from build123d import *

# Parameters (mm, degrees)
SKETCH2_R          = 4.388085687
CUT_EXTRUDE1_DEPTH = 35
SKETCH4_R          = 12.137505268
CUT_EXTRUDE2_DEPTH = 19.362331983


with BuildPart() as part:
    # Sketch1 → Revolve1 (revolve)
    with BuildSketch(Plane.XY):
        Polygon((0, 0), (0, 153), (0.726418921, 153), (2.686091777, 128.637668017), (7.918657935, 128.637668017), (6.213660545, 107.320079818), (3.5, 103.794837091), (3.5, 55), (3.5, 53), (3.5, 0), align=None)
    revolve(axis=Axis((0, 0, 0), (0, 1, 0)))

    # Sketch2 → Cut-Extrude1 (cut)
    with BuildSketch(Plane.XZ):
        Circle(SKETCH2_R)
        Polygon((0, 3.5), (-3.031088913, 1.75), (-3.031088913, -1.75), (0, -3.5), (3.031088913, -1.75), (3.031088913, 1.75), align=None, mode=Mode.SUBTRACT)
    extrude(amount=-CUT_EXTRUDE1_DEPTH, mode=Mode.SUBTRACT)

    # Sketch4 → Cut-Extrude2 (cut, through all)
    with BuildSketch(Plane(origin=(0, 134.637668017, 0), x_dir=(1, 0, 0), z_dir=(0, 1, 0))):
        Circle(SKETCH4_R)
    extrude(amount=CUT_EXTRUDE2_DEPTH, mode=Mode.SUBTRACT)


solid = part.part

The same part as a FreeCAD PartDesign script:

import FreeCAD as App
import Part
import Sketcher
from FreeCAD import Vector
Q = App.Units.Quantity

doc = App.newDocument("Part")
body = doc.addObject("PartDesign::Body", "Body")

# Sketch on XY plane
sketch1 = body.newObject("Sketcher::SketchObject", "Sketch")
sketch1.AttachmentSupport = (doc.getObject("XY_Plane"), [""])
sketch1.MapMode = "FlatFace"
sketch1.addGeometry([
    Part.LineSegment(Vector(0, 153, 0), Vector(0, 0, 0)),  # 0
    Part.LineSegment(Vector(0, 0, 0), Vector(3.5, 0, 0)),  # 1
    Part.LineSegment(Vector(3.5, 0, 0), Vector(3.5, 103.794837, 0)),  # 2
    Part.LineSegment(Vector(3.5, 103.794837, 0), Vector(6.213661, 107.32008, 0)),  # 3
    Part.LineSegment(Vector(6.213661, 107.32008, 0), Vector(7.918658, 128.637668, 0)),  # 4
    Part.LineSegment(Vector(7.918658, 128.637668, 0), Vector(2.686092, 128.637668, 0)),  # 5
    Part.LineSegment(Vector(2.686092, 128.637668, 0), Vector(0.726419, 153, 0)),  # 6
    Part.LineSegment(Vector(0.726419, 153, 0), Vector(0, 153, 0)),  # 7
], False)
sketch1.addConstraint([
    Sketcher.Constraint("Coincident", 0, 2, 1, 1),
    Sketcher.Constraint("Coincident", 1, 2, 2, 1),
    Sketcher.Constraint("Coincident", 2, 2, 3, 1),
    Sketcher.Constraint("Coincident", 3, 2, 4, 1),
    Sketcher.Constraint("Coincident", 4, 2, 5, 1),
    Sketcher.Constraint("Coincident", 5, 2, 6, 1),
    Sketcher.Constraint("Coincident", 6, 2, 7, 1),
    Sketcher.Constraint("Coincident", 7, 2, 0, 1),
    Sketcher.Constraint("Vertical", 0),
    Sketcher.Constraint("Horizontal", 1),
    Sketcher.Constraint("Vertical", 2),
    Sketcher.Constraint("Horizontal", 5),
    Sketcher.Constraint("Horizontal", 7),
    Sketcher.Constraint("Coincident", 0, 2, -1, 1),
    Sketcher.Constraint("DistanceY", 0, 2, 0, 1, 153.0),
    Sketcher.Constraint("DistanceX", 1, 1, 1, 2, 3.5),
    Sketcher.Constraint("DistanceX", 7, 2, 7, 1, 0.726419),
    Sketcher.Constraint("Distance", 3, 4.44874),
    Sketcher.Constraint("Distance", 6, 24.441022),
    Sketcher.Constraint("DistanceX", 5, 2, 5, 1, 5.232566),
    Sketcher.Constraint("DistanceY", 2, 1, 2, 2, 103.794837),
    Sketcher.Constraint("DistanceX", -1, 1, 3, 2, 6.213661),
    Sketcher.Constraint("DistanceY", -1, 1, 4, 2, 128.637668),
])
revolution = body.newObject("PartDesign::Revolution", "Revolution")
revolution.Profile = sketch1
revolution.ReferenceAxis = (sketch1, ["V_Axis"])
revolution.Angle = 360

# Sketch on XZ plane
sketch2 = body.newObject("Sketcher::SketchObject", "Sketch001")
sketch2.AttachmentSupport = (doc.getObject("XZ_Plane"), [""])
sketch2.MapMode = "FlatFace"
sketch2.addGeometry([
    Part.Circle(Vector(0, 0, 0), Vector(0, 0, 1), 4.388086),  # 0
    Part.LineSegment(Vector(-3.031089, 1.75, 0), Vector(0, 3.5, 0)),  # 1
    Part.LineSegment(Vector(0, 3.5, 0), Vector(3.031089, 1.75, 0)),  # 2
    Part.LineSegment(Vector(3.031089, 1.75, 0), Vector(3.031089, -1.75, 0)),  # 3
    Part.LineSegment(Vector(3.031089, -1.75, 0), Vector(0, -3.5, 0)),  # 4
    Part.LineSegment(Vector(0, -3.5, 0), Vector(-3.031089, -1.75, 0)),  # 5
    Part.LineSegment(Vector(-3.031089, -1.75, 0), Vector(-3.031089, 1.75, 0)),  # 6
], False)
sketch2.addConstraint([
    Sketcher.Constraint("Coincident", 1, 2, 2, 1),
    Sketcher.Constraint("Coincident", 2, 2, 3, 1),
    Sketcher.Constraint("Coincident", 3, 2, 4, 1),
    Sketcher.Constraint("Coincident", 4, 2, 5, 1),
    Sketcher.Constraint("Coincident", 5, 2, 6, 1),
    Sketcher.Constraint("Coincident", 6, 2, 1, 1),
    Sketcher.Constraint("Vertical", 3),
    Sketcher.Constraint("Vertical", 6),
    Sketcher.Constraint("Coincident", 0, 3, -1, 1),
    Sketcher.Constraint("Symmetric", 1, 2, 4, 2, -1, 1),
    Sketcher.Constraint("Symmetric", 2, 2, 5, 2, -1, 1),
    Sketcher.Constraint("PointOnObject", 1, 2, -2),
    Sketcher.Constraint("Parallel", 1, 4),
    Sketcher.Constraint("Horizontal", 3, 2, 5, 2),
    Sketcher.Constraint("Angle", 1, Q("30 deg")),
    Sketcher.Constraint("DistanceY", 3, 2, 3, 1, 3.5),
    Sketcher.Constraint("DistanceY", 4, 2, 1, 2, 7.0),
    Sketcher.Constraint("Diameter", 0, 8.776171),
])
pocket1 = body.newObject("PartDesign::Pocket", "Pocket")
pocket1.Profile = sketch2
pocket1.Length = 35

# Sketch on XZ plane
sketch3 = body.newObject("Sketcher::SketchObject", "Sketch002")
sketch3.AttachmentSupport = (doc.getObject("XZ_Plane"), [""])
sketch3.MapMode = "FlatFace"
sketch3.AttachmentOffset = App.Placement(Vector(0, 0, -134.637668), App.Rotation())
sketch3.addGeometry(Part.Circle(Vector(0, 0, 0), Vector(0, 0, 1), 12.137505), False)
sketch3.addConstraint([
    Sketcher.Constraint("Coincident", 0, 3, -1, 1),
    Sketcher.Constraint("Diameter", 0, 24.275011),
])
pocket2 = body.newObject("PartDesign::Pocket", "Pocket001")
pocket2.Profile = sketch3
pocket2.Type = "ThroughAll"

doc.recompute()
